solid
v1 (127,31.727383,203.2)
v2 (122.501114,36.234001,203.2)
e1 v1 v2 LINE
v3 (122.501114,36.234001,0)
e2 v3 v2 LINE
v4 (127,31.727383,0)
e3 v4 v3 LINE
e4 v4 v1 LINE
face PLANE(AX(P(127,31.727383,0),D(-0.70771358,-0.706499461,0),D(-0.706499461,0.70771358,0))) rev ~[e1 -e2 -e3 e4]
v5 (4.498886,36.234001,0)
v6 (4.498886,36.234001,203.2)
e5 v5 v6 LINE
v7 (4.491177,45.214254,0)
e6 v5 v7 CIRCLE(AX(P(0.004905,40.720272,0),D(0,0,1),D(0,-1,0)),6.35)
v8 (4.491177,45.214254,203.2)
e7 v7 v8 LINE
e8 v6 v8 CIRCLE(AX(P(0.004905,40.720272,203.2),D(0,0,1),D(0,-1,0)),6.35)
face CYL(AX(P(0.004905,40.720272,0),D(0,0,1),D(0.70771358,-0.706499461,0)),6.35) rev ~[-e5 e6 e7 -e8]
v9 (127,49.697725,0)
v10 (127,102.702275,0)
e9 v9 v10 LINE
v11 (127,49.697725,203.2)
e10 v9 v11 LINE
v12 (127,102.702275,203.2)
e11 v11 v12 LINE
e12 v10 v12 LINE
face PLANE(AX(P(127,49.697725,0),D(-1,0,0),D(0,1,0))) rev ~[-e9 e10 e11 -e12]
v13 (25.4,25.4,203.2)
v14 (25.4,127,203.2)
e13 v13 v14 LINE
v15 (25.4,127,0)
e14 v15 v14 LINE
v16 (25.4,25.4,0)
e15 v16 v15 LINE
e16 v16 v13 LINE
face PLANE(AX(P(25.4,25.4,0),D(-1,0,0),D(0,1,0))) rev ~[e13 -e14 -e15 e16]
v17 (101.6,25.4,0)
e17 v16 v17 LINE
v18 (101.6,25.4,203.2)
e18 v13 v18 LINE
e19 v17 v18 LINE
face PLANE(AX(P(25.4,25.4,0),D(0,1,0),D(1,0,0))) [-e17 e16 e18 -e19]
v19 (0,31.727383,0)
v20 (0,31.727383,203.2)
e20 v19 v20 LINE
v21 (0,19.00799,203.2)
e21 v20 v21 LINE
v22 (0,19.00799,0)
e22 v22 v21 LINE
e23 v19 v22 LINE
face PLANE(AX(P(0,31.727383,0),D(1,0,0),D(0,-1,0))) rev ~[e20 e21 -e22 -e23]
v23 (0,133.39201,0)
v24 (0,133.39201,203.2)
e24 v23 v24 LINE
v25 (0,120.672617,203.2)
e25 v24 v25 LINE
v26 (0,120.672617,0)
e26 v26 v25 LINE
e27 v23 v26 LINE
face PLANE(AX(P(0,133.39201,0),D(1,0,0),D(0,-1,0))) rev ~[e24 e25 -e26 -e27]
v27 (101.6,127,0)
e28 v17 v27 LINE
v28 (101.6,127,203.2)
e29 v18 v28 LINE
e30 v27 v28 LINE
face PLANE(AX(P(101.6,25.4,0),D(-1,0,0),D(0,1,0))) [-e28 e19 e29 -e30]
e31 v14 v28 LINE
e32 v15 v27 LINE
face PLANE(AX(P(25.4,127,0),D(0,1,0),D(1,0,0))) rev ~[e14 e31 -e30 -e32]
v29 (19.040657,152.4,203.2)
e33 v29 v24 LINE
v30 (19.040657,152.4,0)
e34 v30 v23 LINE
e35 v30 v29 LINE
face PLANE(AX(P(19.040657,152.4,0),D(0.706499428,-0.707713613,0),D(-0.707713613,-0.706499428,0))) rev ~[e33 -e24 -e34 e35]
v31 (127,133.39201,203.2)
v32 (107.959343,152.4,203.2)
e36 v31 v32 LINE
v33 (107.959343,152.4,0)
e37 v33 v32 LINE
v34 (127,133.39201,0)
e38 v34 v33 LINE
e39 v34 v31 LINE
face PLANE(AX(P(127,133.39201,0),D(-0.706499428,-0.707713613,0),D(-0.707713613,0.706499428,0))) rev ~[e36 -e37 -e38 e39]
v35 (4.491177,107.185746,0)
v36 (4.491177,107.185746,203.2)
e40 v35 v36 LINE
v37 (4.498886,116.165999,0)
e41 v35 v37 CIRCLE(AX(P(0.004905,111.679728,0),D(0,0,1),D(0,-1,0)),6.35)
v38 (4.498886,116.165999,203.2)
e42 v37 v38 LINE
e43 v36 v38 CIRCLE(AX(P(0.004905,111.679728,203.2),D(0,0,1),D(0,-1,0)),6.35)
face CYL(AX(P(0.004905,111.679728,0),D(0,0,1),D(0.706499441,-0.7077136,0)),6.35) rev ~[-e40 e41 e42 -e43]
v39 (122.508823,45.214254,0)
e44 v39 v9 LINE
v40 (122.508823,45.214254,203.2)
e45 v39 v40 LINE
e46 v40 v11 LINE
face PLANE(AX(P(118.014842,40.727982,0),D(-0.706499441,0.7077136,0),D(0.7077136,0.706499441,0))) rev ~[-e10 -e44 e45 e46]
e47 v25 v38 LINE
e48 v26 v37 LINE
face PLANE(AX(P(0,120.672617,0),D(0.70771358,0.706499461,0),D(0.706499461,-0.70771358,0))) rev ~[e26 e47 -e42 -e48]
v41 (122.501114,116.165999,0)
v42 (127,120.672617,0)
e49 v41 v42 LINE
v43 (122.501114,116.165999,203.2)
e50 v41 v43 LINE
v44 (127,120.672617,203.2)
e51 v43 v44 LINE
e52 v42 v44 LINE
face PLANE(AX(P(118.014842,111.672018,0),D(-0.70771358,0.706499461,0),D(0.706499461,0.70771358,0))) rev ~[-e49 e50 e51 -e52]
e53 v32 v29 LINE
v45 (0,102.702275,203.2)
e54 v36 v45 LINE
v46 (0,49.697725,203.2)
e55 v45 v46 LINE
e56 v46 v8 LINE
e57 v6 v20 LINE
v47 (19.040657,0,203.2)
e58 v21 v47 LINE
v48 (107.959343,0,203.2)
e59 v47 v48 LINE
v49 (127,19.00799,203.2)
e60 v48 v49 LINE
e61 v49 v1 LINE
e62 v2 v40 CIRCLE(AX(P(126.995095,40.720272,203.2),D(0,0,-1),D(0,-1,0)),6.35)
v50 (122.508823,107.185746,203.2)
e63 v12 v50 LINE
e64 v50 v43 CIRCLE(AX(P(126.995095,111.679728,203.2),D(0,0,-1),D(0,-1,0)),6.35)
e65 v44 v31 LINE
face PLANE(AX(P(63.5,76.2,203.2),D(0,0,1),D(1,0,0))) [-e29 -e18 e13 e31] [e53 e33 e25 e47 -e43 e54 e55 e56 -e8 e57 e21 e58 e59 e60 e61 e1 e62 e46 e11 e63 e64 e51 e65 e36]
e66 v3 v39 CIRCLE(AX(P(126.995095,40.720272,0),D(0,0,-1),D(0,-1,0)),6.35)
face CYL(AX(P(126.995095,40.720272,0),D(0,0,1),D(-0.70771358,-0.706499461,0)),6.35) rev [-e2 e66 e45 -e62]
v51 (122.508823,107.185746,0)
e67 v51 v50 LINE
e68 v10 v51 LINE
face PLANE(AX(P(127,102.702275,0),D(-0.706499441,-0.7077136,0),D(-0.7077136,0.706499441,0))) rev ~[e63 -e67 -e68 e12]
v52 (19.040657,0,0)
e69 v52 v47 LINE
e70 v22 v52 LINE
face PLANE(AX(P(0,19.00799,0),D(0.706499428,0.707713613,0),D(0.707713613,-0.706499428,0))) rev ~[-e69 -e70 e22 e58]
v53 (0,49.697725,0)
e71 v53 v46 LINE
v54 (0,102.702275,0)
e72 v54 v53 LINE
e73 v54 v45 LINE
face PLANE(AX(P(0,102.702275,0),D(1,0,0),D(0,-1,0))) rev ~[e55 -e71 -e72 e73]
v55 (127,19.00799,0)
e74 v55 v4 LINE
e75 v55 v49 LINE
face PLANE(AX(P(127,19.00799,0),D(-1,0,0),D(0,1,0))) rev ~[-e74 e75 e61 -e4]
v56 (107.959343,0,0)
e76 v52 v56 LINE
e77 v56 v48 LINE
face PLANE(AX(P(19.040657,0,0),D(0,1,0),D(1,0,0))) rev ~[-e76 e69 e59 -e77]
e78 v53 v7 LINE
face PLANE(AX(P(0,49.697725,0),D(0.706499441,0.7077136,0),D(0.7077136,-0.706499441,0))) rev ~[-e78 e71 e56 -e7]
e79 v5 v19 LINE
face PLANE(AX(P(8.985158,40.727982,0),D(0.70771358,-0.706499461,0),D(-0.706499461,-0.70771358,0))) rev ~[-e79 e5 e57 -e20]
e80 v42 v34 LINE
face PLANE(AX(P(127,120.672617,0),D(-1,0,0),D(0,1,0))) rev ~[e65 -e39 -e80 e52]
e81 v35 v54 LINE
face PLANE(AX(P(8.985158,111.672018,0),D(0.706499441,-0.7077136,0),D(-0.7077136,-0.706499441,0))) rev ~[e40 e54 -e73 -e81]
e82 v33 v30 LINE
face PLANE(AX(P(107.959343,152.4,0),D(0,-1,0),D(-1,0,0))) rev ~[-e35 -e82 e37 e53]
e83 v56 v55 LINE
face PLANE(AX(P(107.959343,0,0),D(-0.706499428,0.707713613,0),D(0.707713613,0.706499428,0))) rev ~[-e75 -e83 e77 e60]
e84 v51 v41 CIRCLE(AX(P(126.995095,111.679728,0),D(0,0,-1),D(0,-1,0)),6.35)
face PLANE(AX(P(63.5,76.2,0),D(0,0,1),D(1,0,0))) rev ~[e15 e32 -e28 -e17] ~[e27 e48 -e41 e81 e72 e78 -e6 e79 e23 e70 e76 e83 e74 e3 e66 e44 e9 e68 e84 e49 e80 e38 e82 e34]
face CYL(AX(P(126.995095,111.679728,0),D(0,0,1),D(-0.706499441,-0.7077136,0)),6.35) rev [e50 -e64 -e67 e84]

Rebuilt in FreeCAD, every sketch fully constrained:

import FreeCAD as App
import Part
import Sketcher
from FreeCAD import Vector
Q = App.Units.Quantity


def edges_at(feature, points):
    """Names of the edges that pass closest to the given points."""
    edges = feature.Shape.Edges
    near = lambda p: min(range(len(edges)), key=lambda i: edges[i].distToShape(Part.Vertex(*p))[0])
    return sorted({f"Edge{near(p) + 1}" for p in points})

doc = App.newDocument("Part")
body = doc.addObject("PartDesign::Body", "Body")

# Sketch on XY plane
sketch1 = body.newObject("Sketcher::SketchObject", "Sketch")
sketch1.AttachmentSupport = (doc.getObject("XY_Plane"), [""])
sketch1.MapMode = "FlatFace"
sketch1.addGeometry(Part.LineSegment(Vector(0, 19, 0), Vector(19, 0, 0)), False)
sketch1.addGeometry(Part.LineSegment(Vector(19, 0, 0), Vector(108, 0, 0)), False)
sketch1.addGeometry(Part.LineSegment(Vector(108, 0, 0), Vector(127, 19, 0)), False)
sketch1.addGeometry(Part.LineSegment(Vector(127, 19, 0), Vector(127, 32, 0)), False)
sketch1.addGeometry(Part.LineSegment(Vector(127, 32, 0), Vector(118, 41, 0)), False)
sketch1.addGeometry(Part.LineSegment(Vector(118, 41, 0), Vector(127, 50, 0)), False)
sketch1.addGeometry(Part.LineSegment(Vector(127, 50, 0), Vector(127, 103, 0)), False)
sketch1.addGeometry(Part.LineSegment(Vector(127, 103, 0), Vector(118, 112, 0)), False)
sketch1.addGeometry(Part.LineSegment(Vector(118, 112, 0), Vector(127, 121, 0)), False)
sketch1.addGeometry(Part.LineSegment(Vector(127, 121, 0), Vector(127, 133, 0)), False)
sketch1.addGeometry(Part.LineSegment(Vector(127, 133, 0), Vector(108, 152, 0)), False)
sketch1.addGeometry(Part.LineSegment(Vector(108, 152, 0), Vector(19, 152, 0)), False)
sketch1.addGeometry(Part.LineSegment(Vector(19, 152, 0), Vector(0, 133, 0)), False)
sketch1.addGeometry(Part.LineSegment(Vector(0, 133, 0), Vector(0, 121, 0)), False)
sketch1.addGeometry(Part.LineSegment(Vector(0, 121, 0), Vector(9, 112, 0)), False)
sketch1.addGeometry(Part.LineSegment(Vector(9, 112, 0), Vector(0, 103, 0)), False)
sketch1.addGeometry(Part.LineSegment(Vector(0, 103, 0), Vector(0, 50, 0)), False)
sketch1.addGeometry(Part.LineSegment(Vector(0, 50, 0), Vector(9, 41, 0)), False)
sketch1.addGeometry(Part.LineSegment(Vector(9, 41, 0), Vector(0, 32, 0)), False)
sketch1.addGeometry(Part.LineSegment(Vector(0, 32, 0), Vector(0, 19, 0)), False)
sketch1.addGeometry(Part.LineSegment(Vector(102, 25, 0), Vector(25, 25, 0)), False)
sketch1.addGeometry(Part.LineSegment(Vector(25, 25, 0), Vector(25, 127, 0)), False)
sketch1.addGeometry(Part.LineSegment(Vector(25, 127, 0), Vector(102, 127, 0)), False)
sketch1.addGeometry(Part.LineSegment(Vector(102, 127, 0), Vector(102, 25, 0)), False)
sketch1.addConstraint(Sketcher.Constraint("Coincident", 0, 2, 1, 1))
sketch1.addConstraint(Sketcher.Constraint("Coincident", 1, 2, 2, 1))
sketch1.addConstraint(Sketcher.Constraint("Coincident", 2, 2, 3, 1))
sketch1.addConstraint(Sketcher.Constraint("Coincident", 3, 2, 4, 1))
sketch1.addConstraint(Sketcher.Constraint("Coincident", 4, 2, 5, 1))
sketch1.addConstraint(Sketcher.Constraint("Coincident", 5, 2, 6, 1))
sketch1.addConstraint(Sketcher.Constraint("Coincident", 6, 2, 7, 1))
sketch1.addConstraint(Sketcher.Constraint("Coincident", 7, 2, 8, 1))
sketch1.addConstraint(Sketcher.Constraint("Coincident", 8, 2, 9, 1))
sketch1.addConstraint(Sketcher.Constraint("Coincident", 9, 2, 10, 1))
sketch1.addConstraint(Sketcher.Constraint("Coincident", 10, 2, 11, 1))
sketch1.addConstraint(Sketcher.Constraint("Coincident", 11, 2, 12, 1))
sketch1.addConstraint(Sketcher.Constraint("Coincident", 12, 2, 13, 1))
sketch1.addConstraint(Sketcher.Constraint("Coincident", 13, 2, 14, 1))
sketch1.addConstraint(Sketcher.Constraint("Coincident", 14, 2, 15, 1))
sketch1.addConstraint(Sketcher.Constraint("Coincident", 15, 2, 16, 1))
sketch1.addConstraint(Sketcher.Constraint("Coincident", 16, 2, 17, 1))
sketch1.addConstraint(Sketcher.Constraint("Coincident", 17, 2, 18, 1))
sketch1.addConstraint(Sketcher.Constraint("Coincident", 18, 2, 19, 1))
sketch1.addConstraint(Sketcher.Constraint("Coincident", 19, 2, 0, 1))
sketch1.addConstraint(Sketcher.Constraint("Coincident", 20, 2, 21, 1))
sketch1.addConstraint(Sketcher.Constraint("Coincident", 21, 2, 22, 1))
sketch1.addConstraint(Sketcher.Constraint("Coincident", 22, 2, 23, 1))
sketch1.addConstraint(Sketcher.Constraint("Coincident", 23, 2, 20, 1))
sketch1.addConstraint(Sketcher.Constraint("Horizontal", 1))
sketch1.addConstraint(Sketcher.Constraint("Vertical", 3))
sketch1.addConstraint(Sketcher.Constraint("Vertical", 6))
sketch1.addConstraint(Sketcher.Constraint("Vertical", 9))
sketch1.addConstraint(Sketcher.Constraint("Horizontal", 11))
sketch1.addConstraint(Sketcher.Constraint("Vertical", 13))
sketch1.addConstraint(Sketcher.Constraint("Vertical", 16))
sketch1.addConstraint(Sketcher.Constraint("Vertical", 19))
sketch1.addConstraint(Sketcher.Constraint("Horizontal", 20))
sketch1.addConstraint(Sketcher.Constraint("Vertical", 21))
sketch1.addConstraint(Sketcher.Constraint("Horizontal", 22))
sketch1.addConstraint(Sketcher.Constraint("Vertical", 23))
sketch1.addConstraint(Sketcher.Constraint("PointOnObject", 0, 2, -1))
sketch1.addConstraint(Sketcher.Constraint("PointOnObject", 12, 2, -2))
sketch1.addConstraint(Sketcher.Constraint("PointOnObject", 15, 2, -2))
sketch1.addConstraint(Sketcher.Constraint("PointOnObject", 18, 2, -2))
sketch1.addConstraint(Sketcher.Constraint("Perpendicular", 2, 4))
sketch1.addConstraint(Sketcher.Constraint("Perpendicular", 4, 5))
sketch1.addConstraint(Sketcher.Constraint("Parallel", 0, 7))
sketch1.addConstraint(Sketcher.Constraint("Perpendicular", 7, 8))
sketch1.addConstraint(Sketcher.Constraint("Perpendicular", 8, 10))
sketch1.addConstraint(Sketcher.Constraint("Parallel", 5, 12))
sketch1.addConstraint(Sketcher.Constraint("Perpendicular", 12, 14))
sketch1.addConstraint(Sketcher.Constraint("Perpendicular", 14, 15))
sketch1.addConstraint(Sketcher.Constraint("Parallel", 10, 17))
sketch1.addConstraint(Sketcher.Constraint("Perpendicular", 17, 18))
sketch1.addConstraint(Sketcher.Constraint("Horizontal", 9, 2, 12, 2))
sketch1.addConstraint(Sketcher.Constraint("Horizontal", 8, 2, 13, 2))
sketch1.addConstraint(Sketcher.Constraint("Horizontal", 7, 2, 14, 2))
sketch1.addConstraint(Sketcher.Constraint("Horizontal", 6, 2, 15, 2))
sketch1.addConstraint(Sketcher.Constraint("Horizontal", 5, 2, 16, 2))
sketch1.addConstraint(Sketcher.Constraint("Horizontal", 4, 2, 17, 2))
sketch1.addConstraint(Sketcher.Constraint("Horizontal", 3, 2, 18, 2))
sketch1.addConstraint(Sketcher.Constraint("Horizontal", 2, 2, 19, 2))
sketch1.addConstraint(Sketcher.Constraint("Vertical", 3, 2, 5, 2))
sketch1.addConstraint(Sketcher.Constraint("Vertical", 4, 2, 7, 2))
sketch1.addConstraint(Sketcher.Constraint("Vertical", 1, 2, 10, 2))
sketch1.addConstraint(Sketcher.Constraint("Equal", 3, 9))
sketch1.addConstraint(Sketcher.Constraint("DistanceX", 20, 2, 20, 1, Q("3 in")))
sketch1.addConstraint(Sketcher.Constraint("DistanceY", 21, 1, 21, 2, Q("4 in")))
sketch1.addConstraint(Sketcher.Constraint("DistanceX", -1, 1, 2, 2, Q("5 in")))
sketch1.addConstraint(Sketcher.Constraint("DistanceY", -1, 1, 10, 2, Q("6 in")))
sketch1.addConstraint(Sketcher.Constraint("DistanceX", -1, 1, 20, 2, Q("1 in")))
sketch1.addConstraint(Sketcher.Constraint("DistanceY", -1, 1, 20, 2, Q("1 in")))
sketch1.addConstraint(Sketcher.Constraint("DistanceY", 6, 1, 6, 2, Q("53.00455 mm")))
sketch1.addConstraint(Sketcher.Constraint("DistanceY", 3, 2, 4, 2, Q("9.000599 mm")))
sketch1.addConstraint(Sketcher.Constraint("DistanceX", 1, 2, 4, 2, Q("10.055499 mm")))
sketch1.addConstraint(Sketcher.Constraint("DistanceX", 1, 1, 1, 2, Q("88.918686 mm")))
pad1 = body.newObject("PartDesign::Pad", "Pad")
pad1.Profile = sketch1
pad1.Length = Q("8 in")
doc.recompute()

fillet = body.newObject("PartDesign::Fillet", "Fillet")
fillet.Base = (pad1, edges_at(pad1, [
    (118.015, 111.672, 101.6),
    (8.985, 111.672, 101.6),
    (8.985, 40.728, 101.6),
    (118.015, 40.728, 101.6),
]))
fillet.Radius = Q("0.25 in")

doc.recompute()
